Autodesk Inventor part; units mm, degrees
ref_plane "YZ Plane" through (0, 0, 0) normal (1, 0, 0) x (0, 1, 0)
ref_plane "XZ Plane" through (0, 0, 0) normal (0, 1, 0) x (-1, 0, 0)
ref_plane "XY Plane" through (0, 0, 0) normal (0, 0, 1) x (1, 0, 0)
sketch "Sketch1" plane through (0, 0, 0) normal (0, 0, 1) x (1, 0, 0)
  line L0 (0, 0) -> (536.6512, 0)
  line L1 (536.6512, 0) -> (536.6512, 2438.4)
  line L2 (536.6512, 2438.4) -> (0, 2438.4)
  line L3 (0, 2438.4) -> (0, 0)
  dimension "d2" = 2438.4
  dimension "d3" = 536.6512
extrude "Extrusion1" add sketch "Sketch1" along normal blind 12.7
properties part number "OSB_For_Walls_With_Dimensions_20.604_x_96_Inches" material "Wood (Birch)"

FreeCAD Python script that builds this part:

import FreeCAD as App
import Part
import Sketcher
from FreeCAD import Vector
Q = App.Units.Quantity

doc = App.newDocument("Part")
params = doc.addObject("Spreadsheet::Sheet", "Params")
for row, (alias, value) in enumerate([
    ("sketch1_height", "96 in"),
    ("sketch1_width", "21.128 in"),
    ("pad1_length", "0.5 in"),
], start=1):
    params.set(f"A{row}", alias)
    params.set(f"B{row}", "=" + value)
    params.setAlias(f"B{row}", alias)

body = doc.addObject("PartDesign::Body", "Body")

sketch1 = body.newObject("Sketcher::SketchObject", "Sketch")
sketch1.AttachmentSupport = (doc.getObject("XY_Plane"), [""])
sketch1.MapMode = "FlatFace"
sketch1.addGeometry([
    Part.LineSegment(Vector(0, 2438.4, 0), Vector(0, 0, 0)),
    Part.LineSegment(Vector(0, 0, 0), Vector(536.6512, 0, 0)),
    Part.LineSegment(Vector(536.6512, 0, 0), Vector(536.6512, 2438.4, 0)),
    Part.LineSegment(Vector(536.6512, 2438.4, 0), Vector(0, 2438.4, 0)),
], False)
sketch1.addConstraint([
    Sketcher.Constraint("Coincident", 0, 2, 1, 1),
    Sketcher.Constraint("Coincident", 1, 2, 2, 1),
    Sketcher.Constraint("Coincident", 2, 2, 3, 1),
    Sketcher.Constraint("Coincident", 3, 2, 0, 1),
    Sketcher.Constraint("Vertical", 0),
    Sketcher.Constraint("Horizontal", 1),
    Sketcher.Constraint("Vertical", 2),
    Sketcher.Constraint("Horizontal", 3),
    Sketcher.Constraint("Coincident", 0, 2, -1, 1),
    Sketcher.Constraint("DistanceY", 0, 2, 0, 1, Q("96 in")),
    Sketcher.Constraint("DistanceX", 1, 1, 1, 2, Q("21.128 in")),
])
sketch1.setExpression("Constraints[9]", "Params.sketch1_height")
sketch1.setExpression("Constraints[10]", "Params.sketch1_width")
pad1 = body.newObject("PartDesign::Pad", "Pad")
pad1.Profile = sketch1
pad1.setExpression("Length", "Params.pad1_length")

doc.recompute()
